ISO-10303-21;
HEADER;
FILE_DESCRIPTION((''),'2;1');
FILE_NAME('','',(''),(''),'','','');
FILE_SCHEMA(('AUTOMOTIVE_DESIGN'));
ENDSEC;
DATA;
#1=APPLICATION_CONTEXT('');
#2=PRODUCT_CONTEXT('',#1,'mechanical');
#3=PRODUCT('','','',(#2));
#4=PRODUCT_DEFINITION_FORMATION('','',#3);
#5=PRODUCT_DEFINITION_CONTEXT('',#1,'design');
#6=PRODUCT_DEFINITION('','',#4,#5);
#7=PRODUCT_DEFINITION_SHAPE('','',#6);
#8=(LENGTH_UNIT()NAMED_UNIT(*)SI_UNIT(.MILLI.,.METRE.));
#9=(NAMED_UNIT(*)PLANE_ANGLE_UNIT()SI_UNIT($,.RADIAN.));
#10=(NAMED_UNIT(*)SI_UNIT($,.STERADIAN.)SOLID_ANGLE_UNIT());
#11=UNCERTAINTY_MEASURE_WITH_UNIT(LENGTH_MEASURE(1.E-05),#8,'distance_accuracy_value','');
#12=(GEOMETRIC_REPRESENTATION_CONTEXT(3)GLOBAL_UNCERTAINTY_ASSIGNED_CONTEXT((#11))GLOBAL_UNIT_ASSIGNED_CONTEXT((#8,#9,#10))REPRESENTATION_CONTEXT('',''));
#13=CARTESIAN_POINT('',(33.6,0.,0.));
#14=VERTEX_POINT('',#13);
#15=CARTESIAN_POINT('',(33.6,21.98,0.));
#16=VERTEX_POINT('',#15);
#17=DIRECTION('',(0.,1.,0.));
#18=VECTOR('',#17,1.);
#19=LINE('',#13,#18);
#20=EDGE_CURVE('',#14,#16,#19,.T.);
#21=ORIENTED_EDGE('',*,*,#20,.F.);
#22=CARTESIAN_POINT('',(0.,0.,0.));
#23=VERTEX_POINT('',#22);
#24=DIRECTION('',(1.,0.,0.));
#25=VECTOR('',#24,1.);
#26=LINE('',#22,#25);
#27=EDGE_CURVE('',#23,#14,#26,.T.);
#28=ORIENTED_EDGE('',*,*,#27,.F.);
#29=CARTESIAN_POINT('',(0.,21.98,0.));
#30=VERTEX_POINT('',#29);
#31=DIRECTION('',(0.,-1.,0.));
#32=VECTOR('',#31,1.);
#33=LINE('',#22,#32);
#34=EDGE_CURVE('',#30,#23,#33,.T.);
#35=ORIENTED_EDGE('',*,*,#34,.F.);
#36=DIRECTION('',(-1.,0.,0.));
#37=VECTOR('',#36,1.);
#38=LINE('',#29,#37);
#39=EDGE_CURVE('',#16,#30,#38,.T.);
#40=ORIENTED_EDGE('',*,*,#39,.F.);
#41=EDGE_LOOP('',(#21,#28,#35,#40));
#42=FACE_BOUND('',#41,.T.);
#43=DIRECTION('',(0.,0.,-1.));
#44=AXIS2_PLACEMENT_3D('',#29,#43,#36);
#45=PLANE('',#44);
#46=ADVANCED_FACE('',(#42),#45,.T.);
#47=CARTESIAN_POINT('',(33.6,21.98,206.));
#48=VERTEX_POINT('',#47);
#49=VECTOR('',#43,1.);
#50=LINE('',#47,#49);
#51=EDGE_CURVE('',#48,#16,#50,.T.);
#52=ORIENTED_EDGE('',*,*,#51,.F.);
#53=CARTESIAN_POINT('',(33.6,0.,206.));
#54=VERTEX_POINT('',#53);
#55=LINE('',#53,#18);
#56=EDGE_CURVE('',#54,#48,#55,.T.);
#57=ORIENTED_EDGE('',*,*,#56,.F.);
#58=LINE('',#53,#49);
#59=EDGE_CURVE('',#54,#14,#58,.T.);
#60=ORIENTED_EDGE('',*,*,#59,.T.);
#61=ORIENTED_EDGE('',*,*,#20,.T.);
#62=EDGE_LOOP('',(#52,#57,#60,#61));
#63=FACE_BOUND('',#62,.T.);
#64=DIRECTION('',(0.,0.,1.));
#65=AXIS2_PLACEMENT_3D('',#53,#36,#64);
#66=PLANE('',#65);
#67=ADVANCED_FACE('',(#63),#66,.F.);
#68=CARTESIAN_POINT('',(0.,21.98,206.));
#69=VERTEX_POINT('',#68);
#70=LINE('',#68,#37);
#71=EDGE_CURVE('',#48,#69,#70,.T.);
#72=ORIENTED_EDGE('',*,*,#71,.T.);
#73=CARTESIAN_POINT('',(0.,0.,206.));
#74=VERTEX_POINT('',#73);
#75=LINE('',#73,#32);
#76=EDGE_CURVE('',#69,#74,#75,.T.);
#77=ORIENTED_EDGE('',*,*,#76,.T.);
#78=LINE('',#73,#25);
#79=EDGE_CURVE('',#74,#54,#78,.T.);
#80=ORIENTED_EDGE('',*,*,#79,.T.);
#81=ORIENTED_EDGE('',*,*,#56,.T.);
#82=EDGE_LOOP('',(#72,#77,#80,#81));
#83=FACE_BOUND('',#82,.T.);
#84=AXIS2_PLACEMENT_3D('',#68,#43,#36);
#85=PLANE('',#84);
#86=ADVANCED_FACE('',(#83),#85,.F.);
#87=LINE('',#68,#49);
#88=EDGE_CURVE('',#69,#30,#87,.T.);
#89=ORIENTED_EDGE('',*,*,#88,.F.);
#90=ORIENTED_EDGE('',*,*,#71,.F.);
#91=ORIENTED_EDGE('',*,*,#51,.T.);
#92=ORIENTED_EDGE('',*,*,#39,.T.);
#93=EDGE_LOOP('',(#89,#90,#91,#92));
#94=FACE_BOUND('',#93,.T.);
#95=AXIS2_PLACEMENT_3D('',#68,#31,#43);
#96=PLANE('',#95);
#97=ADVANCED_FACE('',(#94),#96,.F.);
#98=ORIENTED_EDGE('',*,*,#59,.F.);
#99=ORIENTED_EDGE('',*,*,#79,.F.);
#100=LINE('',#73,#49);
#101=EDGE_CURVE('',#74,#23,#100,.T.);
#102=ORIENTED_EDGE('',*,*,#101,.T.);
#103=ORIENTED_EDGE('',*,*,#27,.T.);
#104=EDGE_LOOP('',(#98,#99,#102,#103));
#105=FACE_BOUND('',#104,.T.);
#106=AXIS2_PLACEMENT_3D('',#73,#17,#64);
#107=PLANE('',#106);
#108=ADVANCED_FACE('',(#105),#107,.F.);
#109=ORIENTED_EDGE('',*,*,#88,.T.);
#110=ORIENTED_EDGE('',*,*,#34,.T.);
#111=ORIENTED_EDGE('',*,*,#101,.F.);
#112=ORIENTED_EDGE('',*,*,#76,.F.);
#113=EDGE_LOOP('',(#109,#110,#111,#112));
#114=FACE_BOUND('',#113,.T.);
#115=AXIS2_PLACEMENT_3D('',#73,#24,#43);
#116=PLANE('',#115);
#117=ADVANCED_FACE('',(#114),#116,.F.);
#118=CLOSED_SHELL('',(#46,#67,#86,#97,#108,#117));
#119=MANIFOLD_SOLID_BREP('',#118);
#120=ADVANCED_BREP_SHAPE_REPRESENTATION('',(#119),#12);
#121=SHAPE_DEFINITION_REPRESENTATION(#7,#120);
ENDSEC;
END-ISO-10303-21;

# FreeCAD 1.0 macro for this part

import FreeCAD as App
import Part
import Sketcher

doc = App.newDocument("Part")
body = doc.addObject("PartDesign::Body", "Body")

# Sketch on XY plane
sketch1 = body.newObject("Sketcher::SketchObject", "Sketch")
sketch1.AttachmentSupport = (doc.getObject("XY_Plane"), [""])
sketch1.MapMode = "FlatFace"
sketch1.addGeometry(Part.LineSegment(App.Vector(0, 21.98, 0), App.Vector(0, 0, 0)), False)
sketch1.addGeometry(Part.LineSegment(App.Vector(0, 0, 0), App.Vector(33.6, 0, 0)), False)
sketch1.addGeometry(Part.LineSegment(App.Vector(33.6, 0, 0), App.Vector(33.6, 21.98, 0)), False)
sketch1.addGeometry(Part.LineSegment(App.Vector(33.6, 21.98, 0), App.Vector(0, 21.98, 0)), False)
sketch1.addConstraint(Sketcher.Constraint("Coincident", 0, 2, 1, 1))
sketch1.addConstraint(Sketcher.Constraint("Coincident", 1, 2, 2, 1))
sketch1.addConstraint(Sketcher.Constraint("Coincident", 2, 2, 3, 1))
sketch1.addConstraint(Sketcher.Constraint("Coincident", 3, 2, 0, 1))
sketch1.addConstraint(Sketcher.Constraint("Vertical", 0))
sketch1.addConstraint(Sketcher.Constraint("Horizontal", 1))
sketch1.addConstraint(Sketcher.Constraint("Vertical", 2))
sketch1.addConstraint(Sketcher.Constraint("Horizontal", 3))
sketch1.addConstraint(Sketcher.Constraint("Coincident", 0, 2, -1, 1))
sketch1.addConstraint(Sketcher.Constraint("DistanceX", 1, 1, 1, 2, 33.6))
sketch1.addConstraint(Sketcher.Constraint("DistanceY", 0, 2, 0, 1, 21.98))
pad1 = body.newObject("PartDesign::Pad", "Pad")
pad1.Profile = sketch1
pad1.Length = 206

doc.recompute()
